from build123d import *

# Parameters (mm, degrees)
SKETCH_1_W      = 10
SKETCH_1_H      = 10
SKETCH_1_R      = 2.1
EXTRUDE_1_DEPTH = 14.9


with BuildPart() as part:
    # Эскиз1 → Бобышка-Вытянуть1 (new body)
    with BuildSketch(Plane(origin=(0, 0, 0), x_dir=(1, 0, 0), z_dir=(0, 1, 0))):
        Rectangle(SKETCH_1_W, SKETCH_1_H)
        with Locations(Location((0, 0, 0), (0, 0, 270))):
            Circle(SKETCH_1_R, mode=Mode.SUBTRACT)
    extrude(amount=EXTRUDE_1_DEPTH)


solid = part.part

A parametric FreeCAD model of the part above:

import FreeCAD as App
import Part
import Sketcher
from FreeCAD import Vector


def add_polygon(sketch, points):
    """Adds a closed chain of lines whose ends are joined by coincident constraints."""
    first, n = sketch.GeometryCount, len(points)
    for a, b in zip(points, points[1:] + points[:1]):
        sketch.addGeometry(Part.LineSegment(App.Vector(*a, 0), App.Vector(*b, 0)), False)
    for i in range(n):
        sketch.addConstraint(Sketcher.Constraint("Coincident", first + i, 2, first + (i + 1) % n, 1))

doc = App.newDocument("Part")
params = doc.addObject("Spreadsheet::Sheet", "Params")
for row, (alias, value) in enumerate([
    ("sketch1_diameter", "4.2 mm"),
    ("sketch1_width", "10 mm"),
    ("pad1_length", "14.9 mm"),
], start=1):
    params.set(f"A{row}", alias)
    params.set(f"B{row}", "=" + value)
    params.setAlias(f"B{row}", alias)

body = doc.addObject("PartDesign::Body", "Body")

sketch1 = doc.addObject("Sketcher::SketchObject", "Sketch")
body.addObject(sketch1)
sketch1.AttachmentSupport = (doc.XZ_Plane, [""])
sketch1.MapMode = "FlatFace"
add_polygon(sketch1, [(-5, -5), (-5, 5), (5, 5), (5, -5)])
sketch1.addGeometry(Part.Circle(Vector(0, 0, 0), Vector(0, 0, 1), 2.1), False)
sketch1.addConstraint(Sketcher.Constraint("Vertical", 0))
sketch1.addConstraint(Sketcher.Constraint("Horizontal", 1))
sketch1.addConstraint(Sketcher.Constraint("Vertical", 2))
sketch1.addConstraint(Sketcher.Constraint("Horizontal", 3))
sketch1.addConstraint(Sketcher.Constraint("Coincident", 4, 3, -1, 1))
sketch1.addConstraint(Sketcher.Constraint("Symmetric", 0, 2, 2, 2, -1, 1))
sketch1.addConstraint(Sketcher.Constraint("Equal", 3, 0))
sketch1.addConstraint(Sketcher.Constraint("Diameter", 4, 4.2))
sketch1.addConstraint(Sketcher.Constraint("DistanceX", 1, 1, 1, 2, 10.0))
sketch1.setExpression("Constraints[11]", "Params.sketch1_diameter")
sketch1.setExpression("Constraints[12]", "Params.sketch1_width")
pad1 = doc.addObject("PartDesign::Pad", "Pad")
body.addObject(pad1)
pad1.Profile = sketch1
pad1.setExpression("Length", "Params.pad1_length")
pad1.Reversed = True

doc.recompute()
